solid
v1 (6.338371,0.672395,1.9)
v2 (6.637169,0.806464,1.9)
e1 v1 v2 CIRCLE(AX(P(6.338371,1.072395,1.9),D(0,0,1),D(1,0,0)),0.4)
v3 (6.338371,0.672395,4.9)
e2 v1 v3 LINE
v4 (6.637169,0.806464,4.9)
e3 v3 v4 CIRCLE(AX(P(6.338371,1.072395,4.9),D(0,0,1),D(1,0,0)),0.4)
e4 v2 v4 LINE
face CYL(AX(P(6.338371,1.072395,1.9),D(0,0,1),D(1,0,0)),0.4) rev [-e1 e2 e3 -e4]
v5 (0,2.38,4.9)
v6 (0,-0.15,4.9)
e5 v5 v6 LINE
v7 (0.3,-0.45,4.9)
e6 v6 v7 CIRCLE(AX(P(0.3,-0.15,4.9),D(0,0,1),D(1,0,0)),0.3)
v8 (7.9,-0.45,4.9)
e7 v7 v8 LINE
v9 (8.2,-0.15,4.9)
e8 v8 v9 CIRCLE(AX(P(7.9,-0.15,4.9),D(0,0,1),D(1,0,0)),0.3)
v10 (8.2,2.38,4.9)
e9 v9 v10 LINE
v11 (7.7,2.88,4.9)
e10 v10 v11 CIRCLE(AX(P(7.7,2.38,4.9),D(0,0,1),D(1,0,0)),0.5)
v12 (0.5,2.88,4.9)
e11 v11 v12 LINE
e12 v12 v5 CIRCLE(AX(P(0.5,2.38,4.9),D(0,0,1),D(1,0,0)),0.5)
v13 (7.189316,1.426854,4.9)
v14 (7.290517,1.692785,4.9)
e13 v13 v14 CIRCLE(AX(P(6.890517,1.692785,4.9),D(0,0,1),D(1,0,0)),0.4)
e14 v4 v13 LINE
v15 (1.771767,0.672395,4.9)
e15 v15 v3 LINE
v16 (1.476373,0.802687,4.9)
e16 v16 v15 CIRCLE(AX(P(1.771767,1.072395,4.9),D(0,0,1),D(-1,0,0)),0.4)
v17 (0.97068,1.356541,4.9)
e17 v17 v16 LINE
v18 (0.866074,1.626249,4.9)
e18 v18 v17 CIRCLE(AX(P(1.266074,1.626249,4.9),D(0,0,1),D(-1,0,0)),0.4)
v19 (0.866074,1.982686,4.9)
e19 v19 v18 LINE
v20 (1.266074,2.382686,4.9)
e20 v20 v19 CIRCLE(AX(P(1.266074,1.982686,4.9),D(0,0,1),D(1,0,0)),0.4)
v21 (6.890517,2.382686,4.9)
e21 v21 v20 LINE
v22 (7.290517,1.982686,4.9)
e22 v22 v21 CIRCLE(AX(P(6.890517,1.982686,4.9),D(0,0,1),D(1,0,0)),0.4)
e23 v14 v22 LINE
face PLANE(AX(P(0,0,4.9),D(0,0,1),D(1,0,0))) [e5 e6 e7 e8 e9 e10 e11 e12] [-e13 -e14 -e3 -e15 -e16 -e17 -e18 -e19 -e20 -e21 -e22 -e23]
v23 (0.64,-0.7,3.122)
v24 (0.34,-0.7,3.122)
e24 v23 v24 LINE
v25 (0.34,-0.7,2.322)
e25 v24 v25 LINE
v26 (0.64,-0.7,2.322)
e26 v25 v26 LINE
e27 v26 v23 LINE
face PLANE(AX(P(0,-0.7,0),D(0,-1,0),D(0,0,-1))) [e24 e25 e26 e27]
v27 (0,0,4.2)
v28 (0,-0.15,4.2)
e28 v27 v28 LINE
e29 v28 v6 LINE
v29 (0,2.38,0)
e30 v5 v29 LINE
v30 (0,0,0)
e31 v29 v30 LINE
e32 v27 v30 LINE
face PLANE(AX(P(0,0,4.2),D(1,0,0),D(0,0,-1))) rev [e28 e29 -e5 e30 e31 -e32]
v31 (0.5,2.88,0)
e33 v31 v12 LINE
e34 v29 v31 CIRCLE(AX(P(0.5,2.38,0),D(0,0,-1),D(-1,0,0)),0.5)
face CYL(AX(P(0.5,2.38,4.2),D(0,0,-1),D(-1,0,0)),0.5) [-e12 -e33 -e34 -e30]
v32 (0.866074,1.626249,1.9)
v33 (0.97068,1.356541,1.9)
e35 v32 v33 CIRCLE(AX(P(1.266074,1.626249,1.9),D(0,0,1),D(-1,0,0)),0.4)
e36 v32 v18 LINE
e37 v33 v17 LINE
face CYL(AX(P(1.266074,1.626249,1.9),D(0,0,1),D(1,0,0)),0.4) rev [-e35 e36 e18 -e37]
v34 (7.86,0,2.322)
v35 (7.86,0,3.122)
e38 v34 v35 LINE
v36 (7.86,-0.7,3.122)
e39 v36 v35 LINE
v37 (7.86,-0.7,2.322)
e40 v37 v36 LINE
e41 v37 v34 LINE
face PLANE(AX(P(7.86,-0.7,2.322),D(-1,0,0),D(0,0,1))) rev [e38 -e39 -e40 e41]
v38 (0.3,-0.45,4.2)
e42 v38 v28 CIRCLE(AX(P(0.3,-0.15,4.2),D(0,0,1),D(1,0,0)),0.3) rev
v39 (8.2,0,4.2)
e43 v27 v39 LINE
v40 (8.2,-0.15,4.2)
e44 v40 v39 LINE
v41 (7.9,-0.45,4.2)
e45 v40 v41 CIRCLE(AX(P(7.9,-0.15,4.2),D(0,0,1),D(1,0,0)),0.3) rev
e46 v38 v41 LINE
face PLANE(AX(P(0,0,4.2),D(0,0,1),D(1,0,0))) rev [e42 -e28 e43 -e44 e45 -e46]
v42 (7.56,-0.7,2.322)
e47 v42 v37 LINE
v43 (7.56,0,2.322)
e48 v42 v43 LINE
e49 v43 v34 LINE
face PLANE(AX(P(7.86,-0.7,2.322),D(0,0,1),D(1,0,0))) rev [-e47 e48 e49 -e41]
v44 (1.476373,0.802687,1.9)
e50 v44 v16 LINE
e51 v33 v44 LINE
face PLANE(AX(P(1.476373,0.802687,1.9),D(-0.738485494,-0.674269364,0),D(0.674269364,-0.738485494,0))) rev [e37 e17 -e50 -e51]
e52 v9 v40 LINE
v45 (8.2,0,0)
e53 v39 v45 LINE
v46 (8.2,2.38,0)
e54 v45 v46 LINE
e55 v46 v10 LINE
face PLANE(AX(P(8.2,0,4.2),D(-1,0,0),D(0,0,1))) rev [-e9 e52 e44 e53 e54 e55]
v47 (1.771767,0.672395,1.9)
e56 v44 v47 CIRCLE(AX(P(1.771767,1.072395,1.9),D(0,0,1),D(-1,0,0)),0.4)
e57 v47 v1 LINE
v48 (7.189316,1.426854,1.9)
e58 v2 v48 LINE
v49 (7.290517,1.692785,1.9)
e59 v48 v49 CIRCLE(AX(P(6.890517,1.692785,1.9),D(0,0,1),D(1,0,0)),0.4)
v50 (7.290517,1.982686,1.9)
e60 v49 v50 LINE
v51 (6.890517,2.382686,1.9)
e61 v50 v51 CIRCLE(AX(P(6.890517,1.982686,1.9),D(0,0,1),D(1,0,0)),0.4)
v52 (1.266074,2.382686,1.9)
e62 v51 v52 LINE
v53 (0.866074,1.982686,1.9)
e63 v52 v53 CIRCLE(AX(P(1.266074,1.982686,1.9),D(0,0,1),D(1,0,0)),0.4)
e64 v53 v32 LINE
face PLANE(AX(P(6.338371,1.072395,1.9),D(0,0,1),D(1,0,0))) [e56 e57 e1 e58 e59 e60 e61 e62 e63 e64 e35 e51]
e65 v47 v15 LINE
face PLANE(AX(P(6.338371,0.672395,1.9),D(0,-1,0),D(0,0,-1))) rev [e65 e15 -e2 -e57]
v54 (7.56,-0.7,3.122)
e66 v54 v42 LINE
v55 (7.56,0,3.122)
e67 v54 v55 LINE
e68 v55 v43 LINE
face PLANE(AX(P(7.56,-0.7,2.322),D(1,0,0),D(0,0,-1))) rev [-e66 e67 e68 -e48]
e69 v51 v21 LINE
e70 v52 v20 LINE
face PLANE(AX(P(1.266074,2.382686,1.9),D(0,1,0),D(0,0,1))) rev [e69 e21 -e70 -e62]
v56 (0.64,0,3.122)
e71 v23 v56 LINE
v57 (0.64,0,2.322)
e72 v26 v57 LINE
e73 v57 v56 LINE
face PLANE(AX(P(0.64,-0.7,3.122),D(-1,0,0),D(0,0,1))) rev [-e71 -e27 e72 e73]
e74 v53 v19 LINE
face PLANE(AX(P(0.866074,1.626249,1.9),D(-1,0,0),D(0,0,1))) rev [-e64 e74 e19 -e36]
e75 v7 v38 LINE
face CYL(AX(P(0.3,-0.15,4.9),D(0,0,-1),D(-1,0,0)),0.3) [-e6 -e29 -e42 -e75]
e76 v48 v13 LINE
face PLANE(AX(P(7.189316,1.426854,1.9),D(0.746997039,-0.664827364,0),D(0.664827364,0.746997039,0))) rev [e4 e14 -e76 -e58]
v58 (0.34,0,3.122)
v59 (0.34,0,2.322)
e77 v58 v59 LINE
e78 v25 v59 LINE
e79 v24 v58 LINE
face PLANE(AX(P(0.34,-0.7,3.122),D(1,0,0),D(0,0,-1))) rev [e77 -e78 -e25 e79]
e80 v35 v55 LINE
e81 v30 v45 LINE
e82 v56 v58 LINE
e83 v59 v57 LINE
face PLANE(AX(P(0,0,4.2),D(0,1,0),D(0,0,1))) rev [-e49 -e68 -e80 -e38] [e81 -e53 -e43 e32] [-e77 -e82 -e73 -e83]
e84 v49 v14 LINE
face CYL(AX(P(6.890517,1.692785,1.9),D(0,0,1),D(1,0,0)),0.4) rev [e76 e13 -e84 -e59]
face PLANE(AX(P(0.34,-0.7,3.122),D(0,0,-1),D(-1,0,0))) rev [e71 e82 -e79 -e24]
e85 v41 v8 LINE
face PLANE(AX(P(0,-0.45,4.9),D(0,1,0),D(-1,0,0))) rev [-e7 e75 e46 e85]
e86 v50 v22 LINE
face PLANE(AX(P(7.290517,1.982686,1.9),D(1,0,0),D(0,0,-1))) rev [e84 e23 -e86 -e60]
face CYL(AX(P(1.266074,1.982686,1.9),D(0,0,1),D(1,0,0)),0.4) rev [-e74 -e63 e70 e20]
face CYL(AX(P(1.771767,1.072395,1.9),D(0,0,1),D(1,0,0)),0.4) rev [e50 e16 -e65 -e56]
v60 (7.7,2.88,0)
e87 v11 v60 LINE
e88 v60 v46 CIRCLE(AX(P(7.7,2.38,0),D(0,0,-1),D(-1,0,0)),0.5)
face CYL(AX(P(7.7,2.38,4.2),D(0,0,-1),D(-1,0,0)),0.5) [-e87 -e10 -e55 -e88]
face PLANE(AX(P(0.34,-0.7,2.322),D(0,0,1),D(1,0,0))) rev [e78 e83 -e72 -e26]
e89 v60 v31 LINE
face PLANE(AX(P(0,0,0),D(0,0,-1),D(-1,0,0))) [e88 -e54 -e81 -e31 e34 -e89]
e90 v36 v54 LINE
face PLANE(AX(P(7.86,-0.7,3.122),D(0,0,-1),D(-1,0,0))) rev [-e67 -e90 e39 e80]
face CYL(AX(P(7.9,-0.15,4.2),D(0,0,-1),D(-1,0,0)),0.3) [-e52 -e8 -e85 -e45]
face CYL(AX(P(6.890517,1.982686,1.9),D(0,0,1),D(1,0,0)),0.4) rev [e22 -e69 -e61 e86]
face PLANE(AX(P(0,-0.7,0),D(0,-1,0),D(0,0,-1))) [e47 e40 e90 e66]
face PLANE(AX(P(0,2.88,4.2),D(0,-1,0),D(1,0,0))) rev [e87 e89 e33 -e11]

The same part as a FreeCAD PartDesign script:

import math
import FreeCAD as App
import Part
import Sketcher

V = App.Vector
Q = App.Units.Quantity


def edges_at(feature, points):
    """Names of the edges that pass closest to the given points."""
    edges = feature.Shape.Edges
    near = lambda p: min(range(len(edges)), key=lambda i: edges[i].distToShape(Part.Vertex(*p))[0])
    return sorted({f"Edge{near(p) + 1}" for p in points})


def add_polygon(sketch, points):
    """Adds a closed chain of lines whose ends are joined by coincident constraints."""
    first, n = sketch.GeometryCount, len(points)
    for a, b in zip(points, points[1:] + points[:1]):
        sketch.addGeometry(Part.LineSegment(App.Vector(*a, 0), App.Vector(*b, 0)), False)
    for i in range(n):
        sketch.addConstraint(Sketcher.Constraint("Coincident", first + i, 2, first + (i + 1) % n, 1))

doc = App.newDocument("Part")
body = doc.addObject("PartDesign::Body", "Body")

# Sketch on XY plane
sketch1 = doc.addObject("Sketcher::SketchObject", "Sketch")
body.addObject(sketch1)
sketch1.AttachmentSupport = (doc.XY_Plane, [""])
sketch1.MapMode = "FlatFace"
add_polygon(sketch1, [(0, 2.9), (0, 0), (8.2, 0), (8.2, 2.9)])  # lines 0-3
sketch1.addConstraint(Sketcher.Constraint("Vertical", 0))
sketch1.addConstraint(Sketcher.Constraint("Horizontal", 1))
sketch1.addConstraint(Sketcher.Constraint("Vertical", 2))
sketch1.addConstraint(Sketcher.Constraint("Horizontal", 3))
sketch1.addConstraint(Sketcher.Constraint("Coincident", 0, 2, -1, 1))
sketch1.addConstraint(Sketcher.Constraint("DistanceX", 1, 1, 1, 2, Q("8.2 mm")))
sketch1.addConstraint(Sketcher.Constraint("DistanceY", 0, 2, 0, 1, Q("2.88 mm")))
pad1 = doc.addObject("PartDesign::Pad", "Pad")
body.addObject(pad1)
pad1.Profile = sketch1
pad1.Length = 4.2

# Sketch on XY plane
sketch2 = doc.addObject("Sketcher::SketchObject", "Sketch001")
body.addObject(sketch2)
sketch2.AttachmentSupport = (doc.XY_Plane, [""])
sketch2.MapMode = "FlatFace"
sketch2.AttachmentOffset = App.Placement(V(0, 0, 4.2), App.Rotation())
add_polygon(sketch2, [(0, 2.9), (0, -0.5), (8.2, -0.5), (8.2, 2.9)])  # lines 0-3
sketch2.addConstraint(Sketcher.Constraint("Vertical", 0))
sketch2.addConstraint(Sketcher.Constraint("Horizontal", 1))
sketch2.addConstraint(Sketcher.Constraint("Vertical", 2))
sketch2.addConstraint(Sketcher.Constraint("Horizontal", 3))
sketch2.addConstraint(Sketcher.Constraint("PointOnObject", 0, 2, -2))
sketch2.addConstraint(Sketcher.Constraint("DistanceX", 1, 1, 1, 2, Q("8.2 mm")))
sketch2.addConstraint(Sketcher.Constraint("DistanceY", 0, 2, 0, 1, Q("3.33 mm")))
sketch2.addConstraint(Sketcher.Constraint("DistanceY", 0, 2, -1, 1, Q("0.45 mm")))
pad2 = doc.addObject("PartDesign::Pad", "Pad001")
body.addObject(pad2)
pad2.Profile = sketch2
pad2.Length = 0.7
doc.recompute()

fillet = doc.addObject("PartDesign::Fillet", "Fillet")
body.addObject(fillet)
fillet.Base = (pad2, edges_at(pad2, [(0, 2.88, 2.45), (8.2, 2.88, 2.45)]))
fillet.Radius = 0.5
doc.recompute()

fillet2 = doc.addObject("PartDesign::Fillet", "Fillet001")
body.addObject(fillet2)
fillet2.Base = (fillet, edges_at(fillet, [(8.2, -0.45, 4.55), (0, -0.45, 4.55)]))
fillet2.Radius = 0.3

# Sketch on XY plane
sketch3 = doc.addObject("Sketcher::SketchObject", "Sketch002")
body.addObject(sketch3)
sketch3.AttachmentSupport = (doc.XY_Plane, [""])
sketch3.MapMode = "FlatFace"
sketch3.AttachmentOffset = App.Placement(V(0, 0, 4.9), App.Rotation())
sketch3.addGeometry(Part.LineSegment(V(6.89, 2.38, 0), V(1.27, 2.38, 0)), False)
sketch3.addGeometry(Part.ArcOfCircle(Part.Circle(V(1.27, 1.98, 0), V(0, 0, 1), 0.4), math.radians(90), math.radians(180)), False)
sketch3.addGeometry(Part.LineSegment(V(0.87, 1.98, 0), V(0.87, 1.63, 0)), False)
sketch3.addGeometry(Part.ArcOfCircle(Part.Circle(V(1.27, 1.63, 0), V(0, 0, 1), 0.4), math.radians(180), math.radians(222)), False)
sketch3.addGeometry(Part.LineSegment(V(0.97, 1.36, 0), V(1.48, 0.8, 0)), False)
sketch3.addGeometry(Part.ArcOfCircle(Part.Circle(V(1.77, 1.07, 0), V(0, 0, 1), 0.4), math.radians(-138), math.radians(-90)), False)
sketch3.addGeometry(Part.LineSegment(V(1.77, 0.67, 0), V(6.34, 0.67, 0)), False)
sketch3.addGeometry(Part.ArcOfCircle(Part.Circle(V(6.34, 1.07, 0), V(0, 0, 1), 0.4), math.radians(-90), math.radians(-42)), False)
sketch3.addGeometry(Part.LineSegment(V(6.64, 0.81, 0), V(7.19, 1.43, 0)), False)
sketch3.addGeometry(Part.ArcOfCircle(Part.Circle(V(6.89, 1.69, 0), V(0, 0, 1), 0.4), math.radians(-42), math.radians(0)), False)
sketch3.addGeometry(Part.LineSegment(V(7.29, 1.69, 0), V(7.29, 1.98, 0)), False)
sketch3.addGeometry(Part.ArcOfCircle(Part.Circle(V(6.89, 1.98, 0), V(0, 0, 1), 0.4), math.radians(0), math.radians(90)), False)
sketch3.addConstraint(Sketcher.Constraint("Tangent", 0, 2, 1, 1))
sketch3.addConstraint(Sketcher.Constraint("Tangent", 1, 2, 2, 1))
sketch3.addConstraint(Sketcher.Constraint("Tangent", 2, 2, 3, 1))
sketch3.addConstraint(Sketcher.Constraint("Tangent", 3, 2, 4, 1))
sketch3.addConstraint(Sketcher.Constraint("Tangent", 4, 2, 5, 1))
sketch3.addConstraint(Sketcher.Constraint("Tangent", 5, 2, 6, 1))
sketch3.addConstraint(Sketcher.Constraint("Tangent", 6, 2, 7, 1))
sketch3.addConstraint(Sketcher.Constraint("Tangent", 7, 2, 8, 1))
sketch3.addConstraint(Sketcher.Constraint("Tangent", 8, 2, 9, 1))
sketch3.addConstraint(Sketcher.Constraint("Tangent", 9, 2, 10, 1))
sketch3.addConstraint(Sketcher.Constraint("Tangent", 10, 2, 11, 1))
sketch3.addConstraint(Sketcher.Constraint("Tangent", 11, 2, 0, 1))
sketch3.addConstraint(Sketcher.Constraint("Horizontal", 0))
sketch3.addConstraint(Sketcher.Constraint("Vertical", 2))
sketch3.addConstraint(Sketcher.Constraint("Horizontal", 6))
sketch3.addConstraint(Sketcher.Constraint("Vertical", 10))
sketch3.addConstraint(Sketcher.Constraint("Equal", 1, 3))
sketch3.addConstraint(Sketcher.Constraint("Equal", 3, 5))
sketch3.addConstraint(Sketcher.Constraint("Equal", 5, 7))
sketch3.addConstraint(Sketcher.Constraint("Equal", 7, 9))
sketch3.addConstraint(Sketcher.Constraint("Equal", 9, 11))
sketch3.addConstraint(Sketcher.Constraint("Radius", 1, Q("0.4 mm")))
sketch3.addConstraint(Sketcher.Constraint("DistanceY", 4, 2, 1, 3, Q("1.179999 mm")))
sketch3.addConstraint(Sketcher.Constraint("DistanceY", 10, 1, 10, 2, Q("0.289901 mm")))
sketch3.addConstraint(Sketcher.Constraint("DistanceX", 3, 3, 4, 2, Q("0.210299 mm")))
sketch3.addConstraint(Sketcher.Constraint("DistanceX", 6, 2, 7, 2, Q("0.298799 mm")))
sketch3.addConstraint(Sketcher.Constraint("Distance", 8, Q("0.830512 mm")))
sketch3.addConstraint(Sketcher.Constraint("DistanceX", 0, 2, 0, 1, Q("5.624443 mm")))
sketch3.addConstraint(Sketcher.Constraint("DistanceY", -1, 1, 3, 3, Q("1.626249 mm")))
sketch3.addConstraint(Sketcher.Constraint("DistanceX", -1, 1, 7, 3, Q("6.338371 mm")))
pocket1 = doc.addObject("PartDesign::Pocket", "Pocket")
body.addObject(pocket1)
pocket1.Profile = sketch3
pocket1.Length = 3

# Sketch on XZ plane
sketch4 = doc.addObject("Sketcher::SketchObject", "Sketch003")
body.addObject(sketch4)
sketch4.AttachmentSupport = (doc.XZ_Plane, [""])
sketch4.MapMode = "FlatFace"
add_polygon(sketch4, [(0.34, 3.12), (0.34, 2.32), (0.64, 2.32), (0.64, 3.12)])  # lines 0-3
add_polygon(sketch4, [(7.56, 3.12), (7.56, 2.32), (7.86, 2.32), (7.86, 3.12)])  # lines 4-7
sketch4.addConstraint(Sketcher.Constraint("Vertical", 0))
sketch4.addConstraint(Sketcher.Constraint("Horizontal", 1))
sketch4.addConstraint(Sketcher.Constraint("Vertical", 2))
sketch4.addConstraint(Sketcher.Constraint("Horizontal", 3))
sketch4.addConstraint(Sketcher.Constraint("Vertical", 4))
sketch4.addConstraint(Sketcher.Constraint("Horizontal", 5))
sketch4.addConstraint(Sketcher.Constraint("Vertical", 6))
sketch4.addConstraint(Sketcher.Constraint("Horizontal", 7))
sketch4.addConstraint(Sketcher.Constraint("Horizontal", 1, 2, 4, 2))
sketch4.addConstraint(Sketcher.Constraint("Horizontal", 3, 2, 6, 2))
sketch4.addConstraint(Sketcher.Constraint("Equal", 3, 5))
sketch4.addConstraint(Sketcher.Constraint("DistanceX", 1, 1, 1, 2, Q("0.3 mm")))
sketch4.addConstraint(Sketcher.Constraint("DistanceY", 0, 2, 0, 1, Q("0.8 mm")))
sketch4.addConstraint(Sketcher.Constraint("DistanceX", -1, 1, 0, 2, Q("0.34 mm")))
sketch4.addConstraint(Sketcher.Constraint("DistanceX", -1, 1, 4, 2, Q("7.56 mm")))
sketch4.addConstraint(Sketcher.Constraint("DistanceY", -1, 1, 0, 2, Q("2.322 mm")))
pad3 = doc.addObject("PartDesign::Pad", "Pad002")
body.addObject(pad3)
pad3.Profile = sketch4
pad3.Length = 0.7

doc.recompute()
